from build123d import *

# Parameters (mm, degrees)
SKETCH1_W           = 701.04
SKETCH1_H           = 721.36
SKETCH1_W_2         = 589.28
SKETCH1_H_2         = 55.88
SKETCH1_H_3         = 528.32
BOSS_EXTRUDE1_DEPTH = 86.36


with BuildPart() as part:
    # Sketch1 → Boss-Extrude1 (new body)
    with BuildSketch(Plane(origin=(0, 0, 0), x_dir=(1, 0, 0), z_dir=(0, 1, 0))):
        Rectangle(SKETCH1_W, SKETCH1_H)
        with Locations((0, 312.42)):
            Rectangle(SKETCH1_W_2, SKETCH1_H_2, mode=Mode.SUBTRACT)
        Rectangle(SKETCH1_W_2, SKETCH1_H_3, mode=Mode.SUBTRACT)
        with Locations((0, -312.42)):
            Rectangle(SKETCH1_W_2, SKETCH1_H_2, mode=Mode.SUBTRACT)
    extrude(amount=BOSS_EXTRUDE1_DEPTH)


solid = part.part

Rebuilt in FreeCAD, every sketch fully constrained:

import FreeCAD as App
import Part
import Sketcher

V = App.Vector
Q = App.Units.Quantity


def add_polygon(sketch, points):
    """Adds a closed chain of lines whose ends are joined by coincident constraints."""
    first, n = sketch.GeometryCount, len(points)
    for a, b in zip(points, points[1:] + points[:1]):
        sketch.addGeometry(Part.LineSegment(App.Vector(*a, 0), App.Vector(*b, 0)), False)
    for i in range(n):
        sketch.addConstraint(Sketcher.Constraint("Coincident", first + i, 2, first + (i + 1) % n, 1))

doc = App.newDocument("Part")
body = doc.addObject("PartDesign::Body", "Body")

# Sketch on XZ plane
sketch1 = doc.addObject("Sketcher::SketchObject", "Sketch")
body.addObject(sketch1)
sketch1.AttachmentSupport = (doc.XZ_Plane, [""])
sketch1.MapMode = "FlatFace"
add_polygon(sketch1, [(-351, -361), (-351, 361), (351, 361), (351, -361)])  # lines 0-3
add_polygon(sketch1, [(295, 340), (-295, 340), (-295, 284), (295, 284)])  # lines 4-7
add_polygon(sketch1, [(295, 264), (-295, 264), (-295, -264), (295, -264)])  # lines 8-11
add_polygon(sketch1, [(295, -284), (-295, -284), (-295, -340), (295, -340)])  # lines 12-15
sketch1.addConstraint([
    Sketcher.Constraint("Vertical", 0),
    Sketcher.Constraint("Horizontal", 1),
    Sketcher.Constraint("Vertical", 2),
    Sketcher.Constraint("Horizontal", 3),
    Sketcher.Constraint("Horizontal", 4),
    Sketcher.Constraint("Vertical", 5),
    Sketcher.Constraint("Horizontal", 6),
    Sketcher.Constraint("Vertical", 7),
    Sketcher.Constraint("Horizontal", 8),
    Sketcher.Constraint("Vertical", 9),
    Sketcher.Constraint("Horizontal", 10),
    Sketcher.Constraint("Vertical", 11),
    Sketcher.Constraint("Horizontal", 12),
    Sketcher.Constraint("Vertical", 13),
    Sketcher.Constraint("Horizontal", 14),
    Sketcher.Constraint("Vertical", 15),
    Sketcher.Constraint("Symmetric", 0, 2, 2, 2, -1, 1),
    Sketcher.Constraint("Symmetric", 8, 2, 10, 2, -1, 1),
    Sketcher.Constraint("Symmetric", 6, 2, 12, 2, -1, 1),
    Sketcher.Constraint("Symmetric", 4, 2, 14, 2, -1, 1),
    Sketcher.Constraint("Vertical", 5, 2, 8, 2),
    Sketcher.Constraint("Vertical", 7, 2, 10, 2),
    Sketcher.Constraint("DistanceX", 1, 1, 1, 2, Q("27.6 in")),
    Sketcher.Constraint("DistanceX", 4, 2, 4, 1, Q("23.2 in")),
    Sketcher.Constraint("DistanceY", 0, 1, 0, 2, Q("28.4 in")),
    Sketcher.Constraint("DistanceY", 5, 2, 5, 1, Q("2.2 in")),
    Sketcher.Constraint("DistanceY", 9, 2, 9, 1, Q("20.8 in")),
    Sketcher.Constraint("DistanceY", 5, 2, 0, 2, Q("3 in")),
])
pad1 = doc.addObject("PartDesign::Pad", "Pad")
body.addObject(pad1)
pad1.Profile = sketch1
pad1.Length = Q("3.4 in")
pad1.Reversed = True

doc.recompute()
